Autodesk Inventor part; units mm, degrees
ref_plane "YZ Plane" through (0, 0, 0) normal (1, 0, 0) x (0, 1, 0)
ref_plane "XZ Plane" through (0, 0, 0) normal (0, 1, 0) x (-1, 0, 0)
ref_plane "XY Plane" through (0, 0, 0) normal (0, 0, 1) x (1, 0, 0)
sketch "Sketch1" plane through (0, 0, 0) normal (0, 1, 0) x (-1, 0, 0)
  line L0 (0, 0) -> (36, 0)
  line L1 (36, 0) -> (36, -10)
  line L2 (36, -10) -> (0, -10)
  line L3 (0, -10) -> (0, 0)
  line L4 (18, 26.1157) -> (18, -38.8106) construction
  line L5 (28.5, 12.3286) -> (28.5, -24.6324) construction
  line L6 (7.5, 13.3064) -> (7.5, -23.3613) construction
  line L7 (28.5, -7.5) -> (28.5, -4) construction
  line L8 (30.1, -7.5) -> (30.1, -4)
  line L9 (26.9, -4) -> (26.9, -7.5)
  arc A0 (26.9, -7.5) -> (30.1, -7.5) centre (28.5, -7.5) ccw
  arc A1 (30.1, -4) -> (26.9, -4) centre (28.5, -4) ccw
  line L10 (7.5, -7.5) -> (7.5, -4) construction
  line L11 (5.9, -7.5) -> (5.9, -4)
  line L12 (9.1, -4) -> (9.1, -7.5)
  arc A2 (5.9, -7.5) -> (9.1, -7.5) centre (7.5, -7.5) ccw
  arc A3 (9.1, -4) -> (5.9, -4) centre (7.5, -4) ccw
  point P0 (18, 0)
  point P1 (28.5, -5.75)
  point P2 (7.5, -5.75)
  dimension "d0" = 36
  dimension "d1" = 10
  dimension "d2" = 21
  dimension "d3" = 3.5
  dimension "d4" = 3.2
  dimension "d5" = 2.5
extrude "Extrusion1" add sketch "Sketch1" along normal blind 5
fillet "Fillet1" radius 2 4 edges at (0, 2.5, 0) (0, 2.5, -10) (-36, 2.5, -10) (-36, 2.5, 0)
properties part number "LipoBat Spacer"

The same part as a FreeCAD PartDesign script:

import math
import FreeCAD as App
import Part
import Sketcher


def edges_at(feature, points):
    """Names of the edges that pass closest to the given points."""
    edges = feature.Shape.Edges
    near = lambda p: min(range(len(edges)), key=lambda i: edges[i].distToShape(Part.Vertex(*p))[0])
    return sorted({f"Edge{near(p) + 1}" for p in points})


def add_polygon(sketch, points):
    """Adds a closed chain of lines whose ends are joined by coincident constraints."""
    first, n = sketch.GeometryCount, len(points)
    for a, b in zip(points, points[1:] + points[:1]):
        sketch.addGeometry(Part.LineSegment(App.Vector(*a, 0), App.Vector(*b, 0)), False)
    for i in range(n):
        sketch.addConstraint(Sketcher.Constraint("Coincident", first + i, 2, first + (i + 1) % n, 1))

doc = App.newDocument("Part")
params = doc.addObject("Spreadsheet::Sheet", "Params")
for row, (alias, value) in enumerate([
    ("sketch1_radius", "1.6 mm"),
    ("sketch1_width", "36 mm"),
    ("sketch1_height", "10 mm"),
    ("sketch1_height2", "3.5 mm"),
    ("pad1_length", "5 mm"),
    ("fillet_radius", "2 mm"),
], start=1):
    params.set(f"A{row}", alias)
    params.set(f"B{row}", "=" + value)
    params.setAlias(f"B{row}", alias)

body = doc.addObject("PartDesign::Body", "Body")

# Sketch on XZ plane
sketch1 = doc.addObject("Sketcher::SketchObject", "Sketch")
body.addObject(sketch1)
sketch1.AttachmentSupport = (doc.XZ_Plane, [""])
sketch1.MapMode = "FlatFace"
add_polygon(sketch1, [(-36, 0), (0, 0), (0, -10), (-36, -10)])  # lines 0-3
sketch1.addGeometry(Part.ArcOfCircle(Part.Circle(App.Vector(-7.5, -7.5, 0), App.Vector(0, 0, 1), 1.6), math.radians(180), math.radians(360)), False)  # 4
sketch1.addGeometry(Part.LineSegment(App.Vector(-5.9, -7.5, 0), App.Vector(-5.9, -4, 0)), False)  # 5
sketch1.addGeometry(Part.ArcOfCircle(Part.Circle(App.Vector(-7.5, -4, 0), App.Vector(0, 0, 1), 1.6), math.radians(0), math.radians(180)), False)  # 6
sketch1.addGeometry(Part.LineSegment(App.Vector(-9.1, -4, 0), App.Vector(-9.1, -7.5, 0)), False)  # 7
sketch1.addGeometry(Part.LineSegment(App.Vector(-30.1, -4, 0), App.Vector(-30.1, -7.5, 0)), False)  # 8
sketch1.addGeometry(Part.ArcOfCircle(Part.Circle(App.Vector(-28.5, -7.5, 0), App.Vector(0, 0, 1), 1.6), math.radians(180), math.radians(360)), False)  # 9
sketch1.addGeometry(Part.LineSegment(App.Vector(-26.9, -7.5, 0), App.Vector(-26.9, -4, 0)), False)  # 10
sketch1.addGeometry(Part.ArcOfCircle(Part.Circle(App.Vector(-28.5, -4, 0), App.Vector(0, 0, 1), 1.6), math.radians(0), math.radians(180)), False)  # 11
sketch1.addConstraint(Sketcher.Constraint("Tangent", 4, 2, 5, 1))
sketch1.addConstraint(Sketcher.Constraint("Tangent", 5, 2, 6, 1))
sketch1.addConstraint(Sketcher.Constraint("Tangent", 6, 2, 7, 1))
sketch1.addConstraint(Sketcher.Constraint("Tangent", 7, 2, 4, 1))
sketch1.addConstraint(Sketcher.Constraint("Tangent", 8, 2, 9, 1))
sketch1.addConstraint(Sketcher.Constraint("Tangent", 9, 2, 10, 1))
sketch1.addConstraint(Sketcher.Constraint("Tangent", 10, 2, 11, 1))
sketch1.addConstraint(Sketcher.Constraint("Tangent", 11, 2, 8, 1))
sketch1.addConstraint(Sketcher.Constraint("Horizontal", 0))
sketch1.addConstraint(Sketcher.Constraint("Vertical", 1))
sketch1.addConstraint(Sketcher.Constraint("Horizontal", 2))
sketch1.addConstraint(Sketcher.Constraint("Vertical", 3))
sketch1.addConstraint(Sketcher.Constraint("Vertical", 5))
sketch1.addConstraint(Sketcher.Constraint("Vertical", 7))
sketch1.addConstraint(Sketcher.Constraint("Vertical", 8))
sketch1.addConstraint(Sketcher.Constraint("Vertical", 10))
sketch1.addConstraint(Sketcher.Constraint("Coincident", 0, 2, -1, 1))
sketch1.addConstraint(Sketcher.Constraint("Equal", 6, 9))
sketch1.addConstraint(Sketcher.Constraint("Horizontal", 4, 3, 9, 3))
sketch1.addConstraint(Sketcher.Constraint("Horizontal", 6, 3, 11, 3))
sketch1.addConstraint(Sketcher.Constraint("Radius", 4, 1.6))
sketch1.addConstraint(Sketcher.Constraint("DistanceX", 0, 1, 0, 2, 36.0))
sketch1.addConstraint(Sketcher.Constraint("DistanceY", 1, 2, 1, 1, 10.0))
sketch1.addConstraint(Sketcher.Constraint("DistanceY", 5, 1, 5, 2, 3.5))
sketch1.addConstraint(Sketcher.Constraint("DistanceX", 9, 3, 4, 3, 21.0))
sketch1.addConstraint(Sketcher.Constraint("DistanceY", 1, 2, 4, 3, 2.5))
sketch1.addConstraint(Sketcher.Constraint("DistanceX", 4, 3, -1, 1, 7.5))
sketch1.setExpression("Constraints[24]", "Params.sketch1_radius")
sketch1.setExpression("Constraints[25]", "Params.sketch1_width")
sketch1.setExpression("Constraints[26]", "Params.sketch1_height")
sketch1.setExpression("Constraints[27]", "Params.sketch1_height2")
pad1 = doc.addObject("PartDesign::Pad", "Pad")
body.addObject(pad1)
pad1.Profile = sketch1
pad1.setExpression("Length", "Params.pad1_length")
pad1.Reversed = True
doc.recompute()

fillet = doc.addObject("PartDesign::Fillet", "Fillet")
body.addObject(fillet)
fillet.Base = (pad1, edges_at(pad1, [
    (0, 2.5, 0),
    (0, 2.5, -10),
    (-36, 2.5, -10),
    (-36, 2.5, 0),
]))
fillet.setExpression("Radius", "Params.fillet_radius")

doc.recompute()
